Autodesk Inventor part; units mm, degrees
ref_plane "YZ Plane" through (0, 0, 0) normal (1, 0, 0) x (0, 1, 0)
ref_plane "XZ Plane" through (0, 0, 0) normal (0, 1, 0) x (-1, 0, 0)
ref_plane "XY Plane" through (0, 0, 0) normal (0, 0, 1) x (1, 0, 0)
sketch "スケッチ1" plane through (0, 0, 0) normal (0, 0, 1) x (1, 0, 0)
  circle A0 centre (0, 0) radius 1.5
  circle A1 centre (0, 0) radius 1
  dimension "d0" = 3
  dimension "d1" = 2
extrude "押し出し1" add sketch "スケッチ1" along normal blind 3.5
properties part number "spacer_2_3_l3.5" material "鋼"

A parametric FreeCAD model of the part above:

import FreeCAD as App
import Part
import Sketcher

V = App.Vector

doc = App.newDocument("Part")
body = doc.addObject("PartDesign::Body", "Body")

sketch1 = body.newObject("Sketcher::SketchObject", "Sketch")
sketch1.AttachmentSupport = (doc.getObject("XY_Plane"), [""])
sketch1.MapMode = "FlatFace"
sketch1.addGeometry([
    Part.Circle(V(0, 0, 0), V(0, 0, 1), 1.5),
    Part.Circle(V(0, 0, 0), V(0, 0, 1), 1),
], False)
sketch1.addConstraint([
    Sketcher.Constraint("Coincident", 0, 3, -1, 1),
    Sketcher.Constraint("Coincident", 1, 3, -1, 1),
    Sketcher.Constraint("Diameter", 0, 3.0),
    Sketcher.Constraint("Diameter", 1, 2.0),
])
pad1 = body.newObject("PartDesign::Pad", "Pad")
pad1.Profile = sketch1
pad1.Length = 3.5

doc.recompute()
